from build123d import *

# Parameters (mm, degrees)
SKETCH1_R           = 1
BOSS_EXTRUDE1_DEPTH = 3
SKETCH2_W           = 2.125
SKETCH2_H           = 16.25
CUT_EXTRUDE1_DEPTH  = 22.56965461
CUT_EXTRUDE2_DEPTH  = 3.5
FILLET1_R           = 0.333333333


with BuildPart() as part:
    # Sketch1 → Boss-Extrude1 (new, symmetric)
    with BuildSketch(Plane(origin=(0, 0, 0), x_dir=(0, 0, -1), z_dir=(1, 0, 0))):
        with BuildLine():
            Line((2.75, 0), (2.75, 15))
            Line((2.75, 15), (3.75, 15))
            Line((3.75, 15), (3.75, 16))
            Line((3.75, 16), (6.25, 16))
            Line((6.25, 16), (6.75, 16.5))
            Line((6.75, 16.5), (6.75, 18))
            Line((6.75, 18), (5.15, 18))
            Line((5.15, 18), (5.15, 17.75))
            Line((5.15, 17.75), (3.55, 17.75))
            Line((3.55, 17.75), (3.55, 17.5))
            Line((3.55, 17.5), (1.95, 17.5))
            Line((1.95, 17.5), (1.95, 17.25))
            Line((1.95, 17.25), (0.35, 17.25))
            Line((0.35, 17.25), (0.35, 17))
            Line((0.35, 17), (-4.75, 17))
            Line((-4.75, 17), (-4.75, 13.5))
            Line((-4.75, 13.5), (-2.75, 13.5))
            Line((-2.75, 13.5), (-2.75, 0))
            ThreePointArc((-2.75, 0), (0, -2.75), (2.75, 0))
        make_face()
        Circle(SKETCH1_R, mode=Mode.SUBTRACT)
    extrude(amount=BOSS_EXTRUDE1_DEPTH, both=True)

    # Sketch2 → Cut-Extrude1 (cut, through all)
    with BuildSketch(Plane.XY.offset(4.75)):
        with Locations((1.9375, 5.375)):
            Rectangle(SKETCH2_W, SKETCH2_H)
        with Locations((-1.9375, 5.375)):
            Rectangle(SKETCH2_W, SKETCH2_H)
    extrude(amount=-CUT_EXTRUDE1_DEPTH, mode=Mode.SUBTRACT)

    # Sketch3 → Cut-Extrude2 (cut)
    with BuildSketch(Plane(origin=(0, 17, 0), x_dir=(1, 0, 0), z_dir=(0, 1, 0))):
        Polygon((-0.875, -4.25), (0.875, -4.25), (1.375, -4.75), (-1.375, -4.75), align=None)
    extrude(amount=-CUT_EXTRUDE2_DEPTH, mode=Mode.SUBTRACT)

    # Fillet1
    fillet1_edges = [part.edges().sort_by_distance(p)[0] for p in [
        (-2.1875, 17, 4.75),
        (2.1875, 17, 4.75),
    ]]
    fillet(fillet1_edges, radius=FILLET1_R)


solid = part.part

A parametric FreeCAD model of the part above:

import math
import FreeCAD as App
import Part
import Sketcher

V = App.Vector
Q = App.Units.Quantity


def edges_at(feature, points):
    """Names of the edges that pass closest to the given points."""
    edges = feature.Shape.Edges
    near = lambda p: min(range(len(edges)), key=lambda i: edges[i].distToShape(Part.Vertex(*p))[0])
    return sorted({f"Edge{near(p) + 1}" for p in points})

doc = App.newDocument("Part")
body = doc.addObject("PartDesign::Body", "Body")

# Sketch on YZ plane
sketch1 = body.newObject("Sketcher::SketchObject", "Sketch")
sketch1.AttachmentSupport = (doc.getObject("YZ_Plane"), [""])
sketch1.MapMode = "FlatFace"
sketch1.addGeometry([
    Part.LineSegment(V(0, -2.75, 0), V(15, -2.75, 0)),  # 0
    Part.LineSegment(V(15, -2.75, 0), V(15, -3.75, 0)),  # 1
    Part.LineSegment(V(15, -3.75, 0), V(16, -3.75, 0)),  # 2
    Part.LineSegment(V(16, -3.75, 0), V(16, -6.25, 0)),  # 3
    Part.LineSegment(V(16, -6.25, 0), V(16.5, -6.75, 0)),  # 4
    Part.LineSegment(V(16.5, -6.75, 0), V(18, -6.75, 0)),  # 5
    Part.LineSegment(V(18, -6.75, 0), V(18, -5.15, 0)),  # 6
    Part.LineSegment(V(18, -5.15, 0), V(17.75, -5.15, 0)),  # 7
    Part.LineSegment(V(17.75, -5.15, 0), V(17.75, -3.55, 0)),  # 8
    Part.LineSegment(V(17.75, -3.55, 0), V(17.5, -3.55, 0)),  # 9
    Part.LineSegment(V(17.5, -3.55, 0), V(17.5, -1.95, 0)),  # 10
    Part.LineSegment(V(17.5, -1.95, 0), V(17.25, -1.95, 0)),  # 11
    Part.LineSegment(V(17.25, -1.95, 0), V(17.25, -0.35, 0)),  # 12
    Part.LineSegment(V(17.25, -0.35, 0), V(17, -0.35, 0)),  # 13
    Part.LineSegment(V(17, -0.35, 0), V(17, 4.75, 0)),  # 14
    Part.LineSegment(V(17, 4.75, 0), V(13.5, 4.75, 0)),  # 15
    Part.LineSegment(V(13.5, 4.75, 0), V(13.5, 2.75, 0)),  # 16
    Part.LineSegment(V(13.5, 2.75, 0), V(0, 2.75, 0)),  # 17
    Part.ArcOfCircle(Part.Circle(V(0, 0, 0), V(0, 0, 1), 2.75), math.radians(90), math.radians(270)),  # 18
    Part.Circle(V(0, 0, 0), V(0, 0, 1), 1),  # 19
], False)
sketch1.addConstraint([
    Sketcher.Constraint("Coincident", 0, 2, 1, 1),
    Sketcher.Constraint("Coincident", 1, 2, 2, 1),
    Sketcher.Constraint("Coincident", 2, 2, 3, 1),
    Sketcher.Constraint("Coincident", 3, 2, 4, 1),
    Sketcher.Constraint("Coincident", 4, 2, 5, 1),
    Sketcher.Constraint("Coincident", 5, 2, 6, 1),
    Sketcher.Constraint("Coincident", 6, 2, 7, 1),
    Sketcher.Constraint("Coincident", 7, 2, 8, 1),
    Sketcher.Constraint("Coincident", 8, 2, 9, 1),
    Sketcher.Constraint("Coincident", 9, 2, 10, 1),
    Sketcher.Constraint("Coincident", 10, 2, 11, 1),
    Sketcher.Constraint("Coincident", 11, 2, 12, 1),
    Sketcher.Constraint("Coincident", 12, 2, 13, 1),
    Sketcher.Constraint("Coincident", 13, 2, 14, 1),
    Sketcher.Constraint("Coincident", 14, 2, 15, 1),
    Sketcher.Constraint("Coincident", 15, 2, 16, 1),
    Sketcher.Constraint("Coincident", 16, 2, 17, 1),
    Sketcher.Constraint("Tangent", 17, 2, 18, 1),
    Sketcher.Constraint("Tangent", 18, 2, 0, 1),
    Sketcher.Constraint("Horizontal", 0),
    Sketcher.Constraint("Vertical", 1),
    Sketcher.Constraint("Horizontal", 2),
    Sketcher.Constraint("Vertical", 3),
    Sketcher.Constraint("Horizontal", 5),
    Sketcher.Constraint("Vertical", 6),
    Sketcher.Constraint("Horizontal", 7),
    Sketcher.Constraint("Vertical", 8),
    Sketcher.Constraint("Horizontal", 9),
    Sketcher.Constraint("Vertical", 10),
    Sketcher.Constraint("Horizontal", 11),
    Sketcher.Constraint("Vertical", 12),
    Sketcher.Constraint("Horizontal", 13),
    Sketcher.Constraint("Vertical", 14),
    Sketcher.Constraint("Horizontal", 15),
    Sketcher.Constraint("Vertical", 16),
    Sketcher.Constraint("Horizontal", 17),
    Sketcher.Constraint("Coincident", 18, 3, -1, 1),
    Sketcher.Constraint("Coincident", 19, 3, -1, 1),
    Sketcher.Constraint("Equal", 7, 9),
    Sketcher.Constraint("Equal", 9, 11),
    Sketcher.Constraint("Equal", 11, 13),
    Sketcher.Constraint("Equal", 2, 1),
    Sketcher.Constraint("Equal", 6, 8),
    Sketcher.Constraint("Equal", 8, 10),
    Sketcher.Constraint("Equal", 10, 12),
    Sketcher.Constraint("Diameter", 19, Q("2 mm")),
    Sketcher.Constraint("DistanceX", 0, 1, 0, 2, Q("15 mm")),
    Sketcher.Constraint("DistanceX", 2, 1, 2, 2, Q("1 mm")),
    Sketcher.Constraint("DistanceY", 16, 2, 16, 1, Q("2 mm")),
    Sketcher.Constraint("Angle", 4, Q("-45 deg")),
    Sketcher.Constraint("Radius", 18, Q("2.75 mm")),
    Sketcher.Constraint("DistanceX", 5, 1, 5, 2, Q("1.5 mm")),
    Sketcher.Constraint("DistanceX", 15, 2, 15, 1, Q("3.5 mm")),
    Sketcher.Constraint("DistanceX", 17, 2, 17, 1, Q("13.5 mm")),
    Sketcher.Constraint("DistanceY", 3, 2, 3, 1, Q("2.5 mm")),
    Sketcher.Constraint("DistanceY", 6, 1, 6, 2, Q("1.6 mm")),
    Sketcher.Constraint("DistanceY", 14, 1, 14, 2, Q("5.1 mm")),
])
pad1 = body.newObject("PartDesign::Pad", "Pad")
pad1.Profile = sketch1
pad1.Length = 6
pad1.Midplane = True

# Sketch on XY plane
sketch2 = body.newObject("Sketcher::SketchObject", "Sketch001")
sketch2.AttachmentSupport = (doc.getObject("XY_Plane"), [""])
sketch2.MapMode = "FlatFace"
sketch2.AttachmentOffset = App.Placement(V(0, 0, 4.75), App.Rotation())
sketch2.addGeometry([
    Part.LineSegment(V(0.9, 13.5, 0), V(0.9, -2.8, 0)),  # 0
    Part.LineSegment(V(0.9, -2.8, 0), V(3, -2.8, 0)),  # 1
    Part.LineSegment(V(3, -2.8, 0), V(3, 13.5, 0)),  # 2
    Part.LineSegment(V(3, 13.5, 0), V(0.9, 13.5, 0)),  # 3
    Part.LineSegment(V(-3, 13.5, 0), V(-3, -2.8, 0)),  # 4
    Part.LineSegment(V(-3, -2.8, 0), V(-0.9, -2.8, 0)),  # 5
    Part.LineSegment(V(-0.9, -2.8, 0), V(-0.9, 13.5, 0)),  # 6
    Part.LineSegment(V(-0.9, 13.5, 0), V(-3, 13.5, 0)),  # 7
], False)
sketch2.addConstraint([
    Sketcher.Constraint("Coincident", 0, 2, 1, 1),
    Sketcher.Constraint("Coincident", 1, 2, 2, 1),
    Sketcher.Constraint("Coincident", 2, 2, 3, 1),
    Sketcher.Constraint("Coincident", 3, 2, 0, 1),
    Sketcher.Constraint("Coincident", 4, 2, 5, 1),
    Sketcher.Constraint("Coincident", 5, 2, 6, 1),
    Sketcher.Constraint("Coincident", 6, 2, 7, 1),
    Sketcher.Constraint("Coincident", 7, 2, 4, 1),
    Sketcher.Constraint("Vertical", 0),
    Sketcher.Constraint("Horizontal", 1),
    Sketcher.Constraint("Vertical", 2),
    Sketcher.Constraint("Horizontal", 3),
    Sketcher.Constraint("Vertical", 4),
    Sketcher.Constraint("Horizontal", 5),
    Sketcher.Constraint("Vertical", 6),
    Sketcher.Constraint("Horizontal", 7),
    Sketcher.Constraint("Symmetric", 1, 2, 4, 2, -2),
    Sketcher.Constraint("Symmetric", 3, 2, 6, 2, -2),
    Sketcher.Constraint("DistanceX", -1, 1, 1, 2, Q("3 mm")),
    Sketcher.Constraint("DistanceY", 0, 2, 0, 1, Q("16.25 mm")),
    Sketcher.Constraint("DistanceY", -1, 1, 2, 2, Q("13.5 mm")),
    Sketcher.Constraint("DistanceX", 1, 1, 1, 2, Q("2.125 mm")),
])
pocket1 = body.newObject("PartDesign::Pocket", "Pocket")
pocket1.Profile = sketch2
pocket1.Type = "ThroughAll"

# Sketch on XZ plane
sketch3 = body.newObject("Sketcher::SketchObject", "Sketch002")
sketch3.AttachmentSupport = (doc.getObject("XZ_Plane"), [""])
sketch3.MapMode = "FlatFace"
sketch3.AttachmentOffset = App.Placement(V(0, 0, -17), App.Rotation())
sketch3.addGeometry([
    Part.LineSegment(V(0.9, 4.2, 0), V(-0.9, 4.2, 0)),
    Part.LineSegment(V(-0.9, 4.2, 0), V(-1.4, 4.8, 0)),
    Part.LineSegment(V(-1.4, 4.8, 0), V(1.4, 4.8, 0)),
    Part.LineSegment(V(1.4, 4.8, 0), V(0.9, 4.2, 0)),
], False)
sketch3.addConstraint([
    Sketcher.Constraint("Coincident", 0, 2, 1, 1),
    Sketcher.Constraint("Coincident", 1, 2, 2, 1),
    Sketcher.Constraint("Coincident", 2, 2, 3, 1),
    Sketcher.Constraint("Coincident", 3, 2, 0, 1),
    Sketcher.Constraint("Horizontal", 0),
    Sketcher.Constraint("Horizontal", 2),
    Sketcher.Constraint("Perpendicular", 1, 3),
    Sketcher.Constraint("Equal", 1, 3),
    Sketcher.Constraint("DistanceX", 0, 2, 0, 1, Q("1.75 mm")),
    Sketcher.Constraint("DistanceX", 2, 1, 2, 2, Q("2.75 mm")),
    Sketcher.Constraint("DistanceY", -1, 1, 0, 2, Q("4.25 mm")),
    Sketcher.Constraint("DistanceX", 0, 2, -1, 1, Q("0.875 mm")),
])
pocket2 = body.newObject("PartDesign::Pocket", "Pocket001")
pocket2.Profile = sketch3
pocket2.Length = 3.5
pocket2.Reversed = True
doc.recompute()

fillet = body.newObject("PartDesign::Fillet", "Fillet")
fillet.Base = (pocket2, edges_at(pocket2, [(-2.188, 17, 4.75), (2.188, 17, 4.75)]))
fillet.Radius = 0.333333

doc.recompute()
